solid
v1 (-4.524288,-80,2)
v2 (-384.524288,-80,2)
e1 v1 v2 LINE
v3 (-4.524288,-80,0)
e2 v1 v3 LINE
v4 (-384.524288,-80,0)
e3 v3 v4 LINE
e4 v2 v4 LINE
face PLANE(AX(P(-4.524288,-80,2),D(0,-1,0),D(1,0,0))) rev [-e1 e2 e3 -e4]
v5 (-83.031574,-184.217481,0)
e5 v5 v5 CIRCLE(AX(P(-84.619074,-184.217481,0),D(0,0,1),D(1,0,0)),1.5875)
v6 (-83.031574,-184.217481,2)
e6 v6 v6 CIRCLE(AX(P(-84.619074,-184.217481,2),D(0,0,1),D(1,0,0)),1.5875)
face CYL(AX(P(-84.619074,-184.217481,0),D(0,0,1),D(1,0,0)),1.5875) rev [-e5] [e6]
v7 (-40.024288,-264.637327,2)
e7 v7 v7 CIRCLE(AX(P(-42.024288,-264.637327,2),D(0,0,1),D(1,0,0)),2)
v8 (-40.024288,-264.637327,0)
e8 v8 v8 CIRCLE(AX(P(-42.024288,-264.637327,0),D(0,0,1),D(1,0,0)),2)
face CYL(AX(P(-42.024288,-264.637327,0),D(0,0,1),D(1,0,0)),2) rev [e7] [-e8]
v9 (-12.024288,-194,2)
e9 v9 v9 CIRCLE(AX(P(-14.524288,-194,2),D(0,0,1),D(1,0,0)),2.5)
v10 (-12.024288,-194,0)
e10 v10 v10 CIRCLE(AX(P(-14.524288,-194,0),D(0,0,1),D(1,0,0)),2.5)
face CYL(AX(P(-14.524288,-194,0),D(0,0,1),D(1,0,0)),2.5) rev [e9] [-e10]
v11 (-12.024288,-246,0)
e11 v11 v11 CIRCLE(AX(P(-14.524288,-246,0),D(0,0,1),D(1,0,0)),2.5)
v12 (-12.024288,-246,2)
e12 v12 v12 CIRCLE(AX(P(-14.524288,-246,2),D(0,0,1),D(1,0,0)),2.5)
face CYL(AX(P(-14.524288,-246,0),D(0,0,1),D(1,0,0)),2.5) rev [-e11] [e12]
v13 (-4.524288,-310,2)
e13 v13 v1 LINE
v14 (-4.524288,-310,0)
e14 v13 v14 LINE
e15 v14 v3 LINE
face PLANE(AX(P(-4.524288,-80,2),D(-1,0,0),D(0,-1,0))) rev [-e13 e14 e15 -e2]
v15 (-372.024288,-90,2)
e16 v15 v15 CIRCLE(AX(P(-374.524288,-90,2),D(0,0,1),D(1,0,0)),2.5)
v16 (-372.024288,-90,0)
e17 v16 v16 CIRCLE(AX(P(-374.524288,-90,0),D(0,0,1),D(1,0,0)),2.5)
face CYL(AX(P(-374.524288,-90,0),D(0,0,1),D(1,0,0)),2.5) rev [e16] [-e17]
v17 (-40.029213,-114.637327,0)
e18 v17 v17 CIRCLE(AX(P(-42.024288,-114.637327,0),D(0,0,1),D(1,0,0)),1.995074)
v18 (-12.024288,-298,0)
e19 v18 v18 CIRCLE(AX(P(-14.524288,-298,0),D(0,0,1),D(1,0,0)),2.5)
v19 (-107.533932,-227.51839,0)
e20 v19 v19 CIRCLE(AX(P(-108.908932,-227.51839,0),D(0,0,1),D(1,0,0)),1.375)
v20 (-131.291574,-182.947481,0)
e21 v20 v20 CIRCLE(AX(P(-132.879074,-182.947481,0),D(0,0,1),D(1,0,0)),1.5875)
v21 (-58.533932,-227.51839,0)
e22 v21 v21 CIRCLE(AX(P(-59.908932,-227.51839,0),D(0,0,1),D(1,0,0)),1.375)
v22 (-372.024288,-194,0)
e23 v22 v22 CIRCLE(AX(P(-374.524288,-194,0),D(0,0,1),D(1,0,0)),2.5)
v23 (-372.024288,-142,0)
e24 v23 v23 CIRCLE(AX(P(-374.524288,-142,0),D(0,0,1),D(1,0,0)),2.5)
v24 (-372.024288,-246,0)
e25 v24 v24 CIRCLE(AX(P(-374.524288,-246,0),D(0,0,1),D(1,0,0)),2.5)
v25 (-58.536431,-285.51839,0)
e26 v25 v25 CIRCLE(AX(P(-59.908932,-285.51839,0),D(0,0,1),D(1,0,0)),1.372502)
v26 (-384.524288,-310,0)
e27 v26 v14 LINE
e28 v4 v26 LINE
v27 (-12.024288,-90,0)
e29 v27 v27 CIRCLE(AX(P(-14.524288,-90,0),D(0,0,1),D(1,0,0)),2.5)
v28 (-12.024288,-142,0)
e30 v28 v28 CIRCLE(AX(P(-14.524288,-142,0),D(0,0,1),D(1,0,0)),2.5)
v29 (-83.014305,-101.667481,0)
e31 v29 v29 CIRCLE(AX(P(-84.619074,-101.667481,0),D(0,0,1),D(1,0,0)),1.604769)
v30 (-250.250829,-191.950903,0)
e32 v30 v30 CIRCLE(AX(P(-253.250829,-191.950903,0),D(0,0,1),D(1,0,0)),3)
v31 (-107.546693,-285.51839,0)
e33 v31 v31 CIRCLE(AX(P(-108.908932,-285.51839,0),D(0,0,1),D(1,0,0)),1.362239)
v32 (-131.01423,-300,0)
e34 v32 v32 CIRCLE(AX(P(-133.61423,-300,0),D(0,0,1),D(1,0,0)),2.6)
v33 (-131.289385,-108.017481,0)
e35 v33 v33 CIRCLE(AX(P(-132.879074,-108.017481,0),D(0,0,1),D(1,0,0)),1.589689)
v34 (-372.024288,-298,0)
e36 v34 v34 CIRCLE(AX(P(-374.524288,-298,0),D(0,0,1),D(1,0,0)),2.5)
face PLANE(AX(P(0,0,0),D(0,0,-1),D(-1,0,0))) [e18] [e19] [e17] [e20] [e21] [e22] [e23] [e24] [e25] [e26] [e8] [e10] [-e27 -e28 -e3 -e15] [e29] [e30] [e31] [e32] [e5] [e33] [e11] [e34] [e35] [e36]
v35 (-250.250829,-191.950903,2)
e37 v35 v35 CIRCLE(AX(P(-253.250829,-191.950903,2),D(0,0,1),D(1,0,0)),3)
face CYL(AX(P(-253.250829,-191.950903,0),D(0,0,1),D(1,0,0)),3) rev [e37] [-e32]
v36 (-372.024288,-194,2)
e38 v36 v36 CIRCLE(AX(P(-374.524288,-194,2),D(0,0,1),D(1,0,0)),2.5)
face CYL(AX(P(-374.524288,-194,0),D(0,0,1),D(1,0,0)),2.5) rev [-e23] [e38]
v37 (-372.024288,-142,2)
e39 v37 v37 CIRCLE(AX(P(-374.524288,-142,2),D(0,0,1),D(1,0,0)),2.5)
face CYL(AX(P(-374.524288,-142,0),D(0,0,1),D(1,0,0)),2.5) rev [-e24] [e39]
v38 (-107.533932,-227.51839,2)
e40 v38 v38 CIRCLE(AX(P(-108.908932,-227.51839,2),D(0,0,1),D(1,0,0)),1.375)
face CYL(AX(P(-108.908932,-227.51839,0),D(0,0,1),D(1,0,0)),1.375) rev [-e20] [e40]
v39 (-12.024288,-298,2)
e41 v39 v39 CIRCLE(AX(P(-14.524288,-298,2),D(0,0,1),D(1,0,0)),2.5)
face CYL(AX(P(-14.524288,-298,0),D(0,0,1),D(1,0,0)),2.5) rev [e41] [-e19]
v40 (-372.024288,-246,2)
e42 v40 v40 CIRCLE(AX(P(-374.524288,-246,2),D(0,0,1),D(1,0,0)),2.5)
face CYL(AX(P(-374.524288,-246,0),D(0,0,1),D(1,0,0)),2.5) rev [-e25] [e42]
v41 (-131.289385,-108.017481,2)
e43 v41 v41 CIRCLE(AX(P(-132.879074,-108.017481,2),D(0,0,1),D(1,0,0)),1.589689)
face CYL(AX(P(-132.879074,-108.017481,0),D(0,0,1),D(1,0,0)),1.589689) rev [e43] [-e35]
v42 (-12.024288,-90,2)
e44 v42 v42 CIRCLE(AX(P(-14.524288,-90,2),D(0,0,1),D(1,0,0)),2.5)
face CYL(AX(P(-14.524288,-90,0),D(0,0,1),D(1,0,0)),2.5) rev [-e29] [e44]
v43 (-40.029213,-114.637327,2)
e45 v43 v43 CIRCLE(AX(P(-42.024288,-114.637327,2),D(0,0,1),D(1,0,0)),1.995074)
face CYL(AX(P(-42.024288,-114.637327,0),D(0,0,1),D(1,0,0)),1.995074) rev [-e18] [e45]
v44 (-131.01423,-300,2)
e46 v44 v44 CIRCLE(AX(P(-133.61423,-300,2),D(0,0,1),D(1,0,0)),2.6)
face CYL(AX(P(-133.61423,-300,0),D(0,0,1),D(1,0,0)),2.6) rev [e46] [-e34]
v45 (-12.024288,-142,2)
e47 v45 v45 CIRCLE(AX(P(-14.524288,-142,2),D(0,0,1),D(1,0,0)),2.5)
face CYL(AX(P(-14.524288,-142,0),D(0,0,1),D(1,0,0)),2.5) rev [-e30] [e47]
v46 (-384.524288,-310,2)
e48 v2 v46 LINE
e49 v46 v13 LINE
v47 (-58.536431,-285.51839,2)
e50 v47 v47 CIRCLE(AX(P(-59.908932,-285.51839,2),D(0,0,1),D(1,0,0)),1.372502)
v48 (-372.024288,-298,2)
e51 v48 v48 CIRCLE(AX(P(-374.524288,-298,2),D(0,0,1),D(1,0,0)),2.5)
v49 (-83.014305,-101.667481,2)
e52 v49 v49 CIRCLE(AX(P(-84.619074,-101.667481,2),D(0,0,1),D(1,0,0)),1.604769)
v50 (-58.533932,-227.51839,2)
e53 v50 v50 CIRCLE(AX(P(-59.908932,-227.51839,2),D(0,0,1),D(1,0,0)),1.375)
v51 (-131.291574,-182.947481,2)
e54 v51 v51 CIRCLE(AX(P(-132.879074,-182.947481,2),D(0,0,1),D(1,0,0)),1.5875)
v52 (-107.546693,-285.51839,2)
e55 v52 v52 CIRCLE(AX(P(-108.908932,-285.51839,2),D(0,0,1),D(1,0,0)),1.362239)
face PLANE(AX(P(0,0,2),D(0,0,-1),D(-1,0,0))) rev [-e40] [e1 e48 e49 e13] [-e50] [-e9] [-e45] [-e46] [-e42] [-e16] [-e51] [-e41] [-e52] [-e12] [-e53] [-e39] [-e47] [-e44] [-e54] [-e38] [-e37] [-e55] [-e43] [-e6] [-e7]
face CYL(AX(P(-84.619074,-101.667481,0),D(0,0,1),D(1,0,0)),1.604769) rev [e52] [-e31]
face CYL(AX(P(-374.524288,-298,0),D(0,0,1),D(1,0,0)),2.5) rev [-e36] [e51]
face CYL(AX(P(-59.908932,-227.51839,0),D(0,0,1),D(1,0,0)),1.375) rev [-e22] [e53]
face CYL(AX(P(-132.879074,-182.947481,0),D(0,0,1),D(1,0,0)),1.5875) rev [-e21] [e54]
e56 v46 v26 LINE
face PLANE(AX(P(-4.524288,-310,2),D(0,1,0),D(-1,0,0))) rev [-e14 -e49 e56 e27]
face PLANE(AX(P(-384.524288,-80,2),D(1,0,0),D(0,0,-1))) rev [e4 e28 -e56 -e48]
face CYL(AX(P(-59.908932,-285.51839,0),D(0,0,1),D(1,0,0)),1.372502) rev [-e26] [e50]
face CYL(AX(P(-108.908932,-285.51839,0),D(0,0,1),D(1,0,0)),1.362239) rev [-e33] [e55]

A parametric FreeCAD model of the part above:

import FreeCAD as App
import Part
import Sketcher
from FreeCAD import Vector


def add_polygon(sketch, points):
    """Adds a closed chain of lines whose ends are joined by coincident constraints."""
    first, n = sketch.GeometryCount, len(points)
    for a, b in zip(points, points[1:] + points[:1]):
        sketch.addGeometry(Part.LineSegment(App.Vector(*a, 0), App.Vector(*b, 0)), False)
    for i in range(n):
        sketch.addConstraint(Sketcher.Constraint("Coincident", first + i, 2, first + (i + 1) % n, 1))

doc = App.newDocument("Part")
body = doc.addObject("PartDesign::Body", "Body")

sketch1 = body.newObject("Sketcher::SketchObject", "Sketch")
sketch1.AttachmentSupport = (doc.getObject("XY_Plane"), [""])
sketch1.MapMode = "FlatFace"
add_polygon(sketch1, [(-384.524288, -80), (-384.524288, -310), (-4.524288, -310), (-4.524288, -80)])
sketch1.addConstraint([
    Sketcher.Constraint("Vertical", 0),
    Sketcher.Constraint("Horizontal", 1),
    Sketcher.Constraint("Vertical", 2),
    Sketcher.Constraint("Horizontal", 3),
    Sketcher.Constraint("DistanceX", 1, 1, 1, 2, 380.0),
    Sketcher.Constraint("DistanceY", 0, 2, 0, 1, 230.0),
    Sketcher.Constraint("DistanceY", 0, 2, -1, 1, 310.0),
    Sketcher.Constraint("DistanceX", 0, 2, -1, 1, 384.524288),
])
pad1 = body.newObject("PartDesign::Pad", "Pad")
pad1.Profile = sketch1
pad1.Length = 2

sketch2 = body.newObject("Sketcher::SketchObject", "Sketch001")
sketch2.AttachmentSupport = (doc.getObject("XY_Plane"), [""])
sketch2.MapMode = "FlatFace"
sketch2.AttachmentOffset = App.Placement(Vector(0, 0, 2), App.Rotation())
sketch2.addGeometry([
    Part.Circle(Vector(-374.524288, -90, 0), Vector(0, 0, 1), 2.5),
    Part.Circle(Vector(-374.524288, -142, 0), Vector(0, 0, 1), 2.5),
    Part.Circle(Vector(-374.524288, -194, 0), Vector(0, 0, 1), 2.5),
    Part.Circle(Vector(-374.524288, -246, 0), Vector(0, 0, 1), 2.5),
    Part.Circle(Vector(-374.524288, -298, 0), Vector(0, 0, 1), 2.5),
    Part.Circle(Vector(-14.524288, -246, 0), Vector(0, 0, 1), 2.5),
    Part.Circle(Vector(-14.524288, -298, 0), Vector(0, 0, 1), 2.5),
    Part.Circle(Vector(-14.524288, -194, 0), Vector(0, 0, 1), 2.5),
    Part.Circle(Vector(-14.524288, -142, 0), Vector(0, 0, 1), 2.5),
    Part.Circle(Vector(-14.524288, -90, 0), Vector(0, 0, 1), 2.5),
], False)
sketch2.addConstraint([
    Sketcher.Constraint("Equal", 0, 1),
    Sketcher.Constraint("Equal", 1, 2),
    Sketcher.Constraint("Equal", 2, 3),
    Sketcher.Constraint("Equal", 3, 4),
    Sketcher.Constraint("Equal", 4, 5),
    Sketcher.Constraint("Equal", 5, 6),
    Sketcher.Constraint("Equal", 6, 7),
    Sketcher.Constraint("Equal", 7, 8),
    Sketcher.Constraint("Equal", 8, 9),
    Sketcher.Constraint("Horizontal", 3, 3, 5, 3),
    Sketcher.Constraint("Horizontal", 4, 3, 6, 3),
    Sketcher.Constraint("Horizontal", 2, 3, 7, 3),
    Sketcher.Constraint("Horizontal", 1, 3, 8, 3),
    Sketcher.Constraint("Horizontal", 0, 3, 9, 3),
    Sketcher.Constraint("Vertical", 0, 3, 1, 3),
    Sketcher.Constraint("Vertical", 1, 3, 2, 3),
    Sketcher.Constraint("Vertical", 2, 3, 3, 3),
    Sketcher.Constraint("Vertical", 3, 3, 4, 3),
    Sketcher.Constraint("Vertical", 5, 3, 6, 3),
    Sketcher.Constraint("Vertical", 6, 3, 7, 3),
    Sketcher.Constraint("Vertical", 7, 3, 8, 3),
    Sketcher.Constraint("Vertical", 8, 3, 9, 3),
    Sketcher.Constraint("Diameter", 0, 5.0),
    Sketcher.Constraint("DistanceY", 0, 3, -1, 1, 90.0),
    Sketcher.Constraint("DistanceY", 1, 3, -1, 1, 142.0),
    Sketcher.Constraint("DistanceY", 2, 3, -1, 1, 194.0),
    Sketcher.Constraint("DistanceY", 3, 3, -1, 1, 246.0),
    Sketcher.Constraint("DistanceY", 4, 3, -1, 1, 298.0),
    Sketcher.Constraint("DistanceX", 3, 3, 5, 3, 360.0),
    Sketcher.Constraint("DistanceX", 0, 3, -1, 1, 374.524288),
])
pocket1 = body.newObject("PartDesign::Pocket", "Pocket")
pocket1.Profile = sketch2
pocket1.Length = 2

sketch3 = body.newObject("Sketcher::SketchObject", "Sketch002")
sketch3.AttachmentSupport = (doc.getObject("XY_Plane"), [""])
sketch3.MapMode = "FlatFace"
sketch3.AttachmentOffset = App.Placement(Vector(0, 0, 2), App.Rotation())
sketch3.addGeometry([
    Part.Circle(Vector(-84.619074, -101.667481, 0), Vector(0, 0, 1), 1.604769),
    Part.Circle(Vector(-132.879074, -108.017481, 0), Vector(0, 0, 1), 1.589689),
    Part.Circle(Vector(-132.879074, -182.947481, 0), Vector(0, 0, 1), 1.5875),
    Part.Circle(Vector(-84.619074, -184.217481, 0), Vector(0, 0, 1), 1.5875),
    Part.Circle(Vector(-108.908932, -227.51839, 0), Vector(0, 0, 1), 1.375),
    Part.Circle(Vector(-59.908932, -227.51839, 0), Vector(0, 0, 1), 1.375),
    Part.Circle(Vector(-59.908932, -285.51839, 0), Vector(0, 0, 1), 1.372502),
    Part.Circle(Vector(-108.908932, -285.51839, 0), Vector(0, 0, 1), 1.362239),
    Part.Circle(Vector(-42.024288, -264.637327, 0), Vector(0, 0, 1), 2),
    Part.Circle(Vector(-42.024288, -114.637327, 0), Vector(0, 0, 1), 1.995074),
    Part.Circle(Vector(-253.250829, -191.950903, 0), Vector(0, 0, 1), 3),
], False)
sketch3.addConstraint([
    Sketcher.Constraint("Equal", 2, 3),
    Sketcher.Constraint("Equal", 4, 5),
    Sketcher.Constraint("Horizontal", 4, 3, 5, 3),
    Sketcher.Constraint("Horizontal", 6, 3, 7, 3),
    Sketcher.Constraint("Vertical", 1, 3, 2, 3),
    Sketcher.Constraint("Vertical", 0, 3, 3, 3),
    Sketcher.Constraint("Vertical", 5, 3, 6, 3),
    Sketcher.Constraint("Vertical", 4, 3, 7, 3),
    Sketcher.Constraint("Vertical", 8, 3, 9, 3),
    Sketcher.Constraint("Diameter", 8, 4.0),
    Sketcher.Constraint("Diameter", 10, 6.0),
    Sketcher.Constraint("Diameter", 4, 2.75),
    Sketcher.Constraint("Diameter", 2, 3.175),
    Sketcher.Constraint("DistanceX", 4, 3, 5, 3, 49.0),
    Sketcher.Constraint("DistanceY", 6, 3, 5, 3, 58.0),
    Sketcher.Constraint("DistanceY", 3, 3, 1, 3, 76.2),
    Sketcher.Constraint("Diameter", 1, 3.179379),
    Sketcher.Constraint("Diameter", 9, 3.990149),
    Sketcher.Constraint("DistanceX", 1, 3, 0, 3, 48.26),
    Sketcher.Constraint("DistanceY", 1, 3, 0, 3, 6.35),
    Sketcher.Constraint("DistanceY", 2, 3, 1, 3, 74.93),
    Sketcher.Constraint("Diameter", 0, 3.209537),
    Sketcher.Constraint("Diameter", 6, 2.745003),
    Sketcher.Constraint("Diameter", 7, 2.724477),
    Sketcher.Constraint("DistanceY", 0, 3, -1, 1, 101.667481),
    Sketcher.Constraint("DistanceY", 4, 3, -1, 1, 227.51839),
    Sketcher.Constraint("DistanceX", 10, 3, -1, 1, 253.250829),
    Sketcher.Constraint("DistanceX", 4, 3, 3, 3, 24.289858),
    Sketcher.Constraint("DistanceX", 0, 3, -1, 1, 84.619074),
    Sketcher.Constraint("DistanceX", 8, 3, -1, 1, 42.024288),
    Sketcher.Constraint("DistanceY", 8, 3, -1, 1, 264.637327),
    Sketcher.Constraint("DistanceY", 9, 3, -1, 1, 114.637327),
    Sketcher.Constraint("DistanceY", 10, 3, -1, 1, 191.950903),
])
pocket2 = body.newObject("PartDesign::Pocket", "Pocket001")
pocket2.Profile = sketch3
pocket2.Length = 2

sketch4 = body.newObject("Sketcher::SketchObject", "Sketch003")
sketch4.AttachmentSupport = (doc.getObject("XY_Plane"), [""])
sketch4.MapMode = "FlatFace"
sketch4.AttachmentOffset = App.Placement(Vector(0, 0, 2), App.Rotation())
sketch4.addGeometry(Part.Circle(Vector(-133.61423, -300, 0), Vector(0, 0, 1), 2.6), False)
sketch4.addConstraint([
    Sketcher.Constraint("Diameter", 0, 5.2),
    Sketcher.Constraint("DistanceY", 0, 3, -1, 1, 300.0),
    Sketcher.Constraint("DistanceX", 0, 3, -1, 1, 133.61423),
])
pocket3 = body.newObject("PartDesign::Pocket", "Pocket002")
pocket3.Profile = sketch4
pocket3.Length = 2

doc.recompute()
